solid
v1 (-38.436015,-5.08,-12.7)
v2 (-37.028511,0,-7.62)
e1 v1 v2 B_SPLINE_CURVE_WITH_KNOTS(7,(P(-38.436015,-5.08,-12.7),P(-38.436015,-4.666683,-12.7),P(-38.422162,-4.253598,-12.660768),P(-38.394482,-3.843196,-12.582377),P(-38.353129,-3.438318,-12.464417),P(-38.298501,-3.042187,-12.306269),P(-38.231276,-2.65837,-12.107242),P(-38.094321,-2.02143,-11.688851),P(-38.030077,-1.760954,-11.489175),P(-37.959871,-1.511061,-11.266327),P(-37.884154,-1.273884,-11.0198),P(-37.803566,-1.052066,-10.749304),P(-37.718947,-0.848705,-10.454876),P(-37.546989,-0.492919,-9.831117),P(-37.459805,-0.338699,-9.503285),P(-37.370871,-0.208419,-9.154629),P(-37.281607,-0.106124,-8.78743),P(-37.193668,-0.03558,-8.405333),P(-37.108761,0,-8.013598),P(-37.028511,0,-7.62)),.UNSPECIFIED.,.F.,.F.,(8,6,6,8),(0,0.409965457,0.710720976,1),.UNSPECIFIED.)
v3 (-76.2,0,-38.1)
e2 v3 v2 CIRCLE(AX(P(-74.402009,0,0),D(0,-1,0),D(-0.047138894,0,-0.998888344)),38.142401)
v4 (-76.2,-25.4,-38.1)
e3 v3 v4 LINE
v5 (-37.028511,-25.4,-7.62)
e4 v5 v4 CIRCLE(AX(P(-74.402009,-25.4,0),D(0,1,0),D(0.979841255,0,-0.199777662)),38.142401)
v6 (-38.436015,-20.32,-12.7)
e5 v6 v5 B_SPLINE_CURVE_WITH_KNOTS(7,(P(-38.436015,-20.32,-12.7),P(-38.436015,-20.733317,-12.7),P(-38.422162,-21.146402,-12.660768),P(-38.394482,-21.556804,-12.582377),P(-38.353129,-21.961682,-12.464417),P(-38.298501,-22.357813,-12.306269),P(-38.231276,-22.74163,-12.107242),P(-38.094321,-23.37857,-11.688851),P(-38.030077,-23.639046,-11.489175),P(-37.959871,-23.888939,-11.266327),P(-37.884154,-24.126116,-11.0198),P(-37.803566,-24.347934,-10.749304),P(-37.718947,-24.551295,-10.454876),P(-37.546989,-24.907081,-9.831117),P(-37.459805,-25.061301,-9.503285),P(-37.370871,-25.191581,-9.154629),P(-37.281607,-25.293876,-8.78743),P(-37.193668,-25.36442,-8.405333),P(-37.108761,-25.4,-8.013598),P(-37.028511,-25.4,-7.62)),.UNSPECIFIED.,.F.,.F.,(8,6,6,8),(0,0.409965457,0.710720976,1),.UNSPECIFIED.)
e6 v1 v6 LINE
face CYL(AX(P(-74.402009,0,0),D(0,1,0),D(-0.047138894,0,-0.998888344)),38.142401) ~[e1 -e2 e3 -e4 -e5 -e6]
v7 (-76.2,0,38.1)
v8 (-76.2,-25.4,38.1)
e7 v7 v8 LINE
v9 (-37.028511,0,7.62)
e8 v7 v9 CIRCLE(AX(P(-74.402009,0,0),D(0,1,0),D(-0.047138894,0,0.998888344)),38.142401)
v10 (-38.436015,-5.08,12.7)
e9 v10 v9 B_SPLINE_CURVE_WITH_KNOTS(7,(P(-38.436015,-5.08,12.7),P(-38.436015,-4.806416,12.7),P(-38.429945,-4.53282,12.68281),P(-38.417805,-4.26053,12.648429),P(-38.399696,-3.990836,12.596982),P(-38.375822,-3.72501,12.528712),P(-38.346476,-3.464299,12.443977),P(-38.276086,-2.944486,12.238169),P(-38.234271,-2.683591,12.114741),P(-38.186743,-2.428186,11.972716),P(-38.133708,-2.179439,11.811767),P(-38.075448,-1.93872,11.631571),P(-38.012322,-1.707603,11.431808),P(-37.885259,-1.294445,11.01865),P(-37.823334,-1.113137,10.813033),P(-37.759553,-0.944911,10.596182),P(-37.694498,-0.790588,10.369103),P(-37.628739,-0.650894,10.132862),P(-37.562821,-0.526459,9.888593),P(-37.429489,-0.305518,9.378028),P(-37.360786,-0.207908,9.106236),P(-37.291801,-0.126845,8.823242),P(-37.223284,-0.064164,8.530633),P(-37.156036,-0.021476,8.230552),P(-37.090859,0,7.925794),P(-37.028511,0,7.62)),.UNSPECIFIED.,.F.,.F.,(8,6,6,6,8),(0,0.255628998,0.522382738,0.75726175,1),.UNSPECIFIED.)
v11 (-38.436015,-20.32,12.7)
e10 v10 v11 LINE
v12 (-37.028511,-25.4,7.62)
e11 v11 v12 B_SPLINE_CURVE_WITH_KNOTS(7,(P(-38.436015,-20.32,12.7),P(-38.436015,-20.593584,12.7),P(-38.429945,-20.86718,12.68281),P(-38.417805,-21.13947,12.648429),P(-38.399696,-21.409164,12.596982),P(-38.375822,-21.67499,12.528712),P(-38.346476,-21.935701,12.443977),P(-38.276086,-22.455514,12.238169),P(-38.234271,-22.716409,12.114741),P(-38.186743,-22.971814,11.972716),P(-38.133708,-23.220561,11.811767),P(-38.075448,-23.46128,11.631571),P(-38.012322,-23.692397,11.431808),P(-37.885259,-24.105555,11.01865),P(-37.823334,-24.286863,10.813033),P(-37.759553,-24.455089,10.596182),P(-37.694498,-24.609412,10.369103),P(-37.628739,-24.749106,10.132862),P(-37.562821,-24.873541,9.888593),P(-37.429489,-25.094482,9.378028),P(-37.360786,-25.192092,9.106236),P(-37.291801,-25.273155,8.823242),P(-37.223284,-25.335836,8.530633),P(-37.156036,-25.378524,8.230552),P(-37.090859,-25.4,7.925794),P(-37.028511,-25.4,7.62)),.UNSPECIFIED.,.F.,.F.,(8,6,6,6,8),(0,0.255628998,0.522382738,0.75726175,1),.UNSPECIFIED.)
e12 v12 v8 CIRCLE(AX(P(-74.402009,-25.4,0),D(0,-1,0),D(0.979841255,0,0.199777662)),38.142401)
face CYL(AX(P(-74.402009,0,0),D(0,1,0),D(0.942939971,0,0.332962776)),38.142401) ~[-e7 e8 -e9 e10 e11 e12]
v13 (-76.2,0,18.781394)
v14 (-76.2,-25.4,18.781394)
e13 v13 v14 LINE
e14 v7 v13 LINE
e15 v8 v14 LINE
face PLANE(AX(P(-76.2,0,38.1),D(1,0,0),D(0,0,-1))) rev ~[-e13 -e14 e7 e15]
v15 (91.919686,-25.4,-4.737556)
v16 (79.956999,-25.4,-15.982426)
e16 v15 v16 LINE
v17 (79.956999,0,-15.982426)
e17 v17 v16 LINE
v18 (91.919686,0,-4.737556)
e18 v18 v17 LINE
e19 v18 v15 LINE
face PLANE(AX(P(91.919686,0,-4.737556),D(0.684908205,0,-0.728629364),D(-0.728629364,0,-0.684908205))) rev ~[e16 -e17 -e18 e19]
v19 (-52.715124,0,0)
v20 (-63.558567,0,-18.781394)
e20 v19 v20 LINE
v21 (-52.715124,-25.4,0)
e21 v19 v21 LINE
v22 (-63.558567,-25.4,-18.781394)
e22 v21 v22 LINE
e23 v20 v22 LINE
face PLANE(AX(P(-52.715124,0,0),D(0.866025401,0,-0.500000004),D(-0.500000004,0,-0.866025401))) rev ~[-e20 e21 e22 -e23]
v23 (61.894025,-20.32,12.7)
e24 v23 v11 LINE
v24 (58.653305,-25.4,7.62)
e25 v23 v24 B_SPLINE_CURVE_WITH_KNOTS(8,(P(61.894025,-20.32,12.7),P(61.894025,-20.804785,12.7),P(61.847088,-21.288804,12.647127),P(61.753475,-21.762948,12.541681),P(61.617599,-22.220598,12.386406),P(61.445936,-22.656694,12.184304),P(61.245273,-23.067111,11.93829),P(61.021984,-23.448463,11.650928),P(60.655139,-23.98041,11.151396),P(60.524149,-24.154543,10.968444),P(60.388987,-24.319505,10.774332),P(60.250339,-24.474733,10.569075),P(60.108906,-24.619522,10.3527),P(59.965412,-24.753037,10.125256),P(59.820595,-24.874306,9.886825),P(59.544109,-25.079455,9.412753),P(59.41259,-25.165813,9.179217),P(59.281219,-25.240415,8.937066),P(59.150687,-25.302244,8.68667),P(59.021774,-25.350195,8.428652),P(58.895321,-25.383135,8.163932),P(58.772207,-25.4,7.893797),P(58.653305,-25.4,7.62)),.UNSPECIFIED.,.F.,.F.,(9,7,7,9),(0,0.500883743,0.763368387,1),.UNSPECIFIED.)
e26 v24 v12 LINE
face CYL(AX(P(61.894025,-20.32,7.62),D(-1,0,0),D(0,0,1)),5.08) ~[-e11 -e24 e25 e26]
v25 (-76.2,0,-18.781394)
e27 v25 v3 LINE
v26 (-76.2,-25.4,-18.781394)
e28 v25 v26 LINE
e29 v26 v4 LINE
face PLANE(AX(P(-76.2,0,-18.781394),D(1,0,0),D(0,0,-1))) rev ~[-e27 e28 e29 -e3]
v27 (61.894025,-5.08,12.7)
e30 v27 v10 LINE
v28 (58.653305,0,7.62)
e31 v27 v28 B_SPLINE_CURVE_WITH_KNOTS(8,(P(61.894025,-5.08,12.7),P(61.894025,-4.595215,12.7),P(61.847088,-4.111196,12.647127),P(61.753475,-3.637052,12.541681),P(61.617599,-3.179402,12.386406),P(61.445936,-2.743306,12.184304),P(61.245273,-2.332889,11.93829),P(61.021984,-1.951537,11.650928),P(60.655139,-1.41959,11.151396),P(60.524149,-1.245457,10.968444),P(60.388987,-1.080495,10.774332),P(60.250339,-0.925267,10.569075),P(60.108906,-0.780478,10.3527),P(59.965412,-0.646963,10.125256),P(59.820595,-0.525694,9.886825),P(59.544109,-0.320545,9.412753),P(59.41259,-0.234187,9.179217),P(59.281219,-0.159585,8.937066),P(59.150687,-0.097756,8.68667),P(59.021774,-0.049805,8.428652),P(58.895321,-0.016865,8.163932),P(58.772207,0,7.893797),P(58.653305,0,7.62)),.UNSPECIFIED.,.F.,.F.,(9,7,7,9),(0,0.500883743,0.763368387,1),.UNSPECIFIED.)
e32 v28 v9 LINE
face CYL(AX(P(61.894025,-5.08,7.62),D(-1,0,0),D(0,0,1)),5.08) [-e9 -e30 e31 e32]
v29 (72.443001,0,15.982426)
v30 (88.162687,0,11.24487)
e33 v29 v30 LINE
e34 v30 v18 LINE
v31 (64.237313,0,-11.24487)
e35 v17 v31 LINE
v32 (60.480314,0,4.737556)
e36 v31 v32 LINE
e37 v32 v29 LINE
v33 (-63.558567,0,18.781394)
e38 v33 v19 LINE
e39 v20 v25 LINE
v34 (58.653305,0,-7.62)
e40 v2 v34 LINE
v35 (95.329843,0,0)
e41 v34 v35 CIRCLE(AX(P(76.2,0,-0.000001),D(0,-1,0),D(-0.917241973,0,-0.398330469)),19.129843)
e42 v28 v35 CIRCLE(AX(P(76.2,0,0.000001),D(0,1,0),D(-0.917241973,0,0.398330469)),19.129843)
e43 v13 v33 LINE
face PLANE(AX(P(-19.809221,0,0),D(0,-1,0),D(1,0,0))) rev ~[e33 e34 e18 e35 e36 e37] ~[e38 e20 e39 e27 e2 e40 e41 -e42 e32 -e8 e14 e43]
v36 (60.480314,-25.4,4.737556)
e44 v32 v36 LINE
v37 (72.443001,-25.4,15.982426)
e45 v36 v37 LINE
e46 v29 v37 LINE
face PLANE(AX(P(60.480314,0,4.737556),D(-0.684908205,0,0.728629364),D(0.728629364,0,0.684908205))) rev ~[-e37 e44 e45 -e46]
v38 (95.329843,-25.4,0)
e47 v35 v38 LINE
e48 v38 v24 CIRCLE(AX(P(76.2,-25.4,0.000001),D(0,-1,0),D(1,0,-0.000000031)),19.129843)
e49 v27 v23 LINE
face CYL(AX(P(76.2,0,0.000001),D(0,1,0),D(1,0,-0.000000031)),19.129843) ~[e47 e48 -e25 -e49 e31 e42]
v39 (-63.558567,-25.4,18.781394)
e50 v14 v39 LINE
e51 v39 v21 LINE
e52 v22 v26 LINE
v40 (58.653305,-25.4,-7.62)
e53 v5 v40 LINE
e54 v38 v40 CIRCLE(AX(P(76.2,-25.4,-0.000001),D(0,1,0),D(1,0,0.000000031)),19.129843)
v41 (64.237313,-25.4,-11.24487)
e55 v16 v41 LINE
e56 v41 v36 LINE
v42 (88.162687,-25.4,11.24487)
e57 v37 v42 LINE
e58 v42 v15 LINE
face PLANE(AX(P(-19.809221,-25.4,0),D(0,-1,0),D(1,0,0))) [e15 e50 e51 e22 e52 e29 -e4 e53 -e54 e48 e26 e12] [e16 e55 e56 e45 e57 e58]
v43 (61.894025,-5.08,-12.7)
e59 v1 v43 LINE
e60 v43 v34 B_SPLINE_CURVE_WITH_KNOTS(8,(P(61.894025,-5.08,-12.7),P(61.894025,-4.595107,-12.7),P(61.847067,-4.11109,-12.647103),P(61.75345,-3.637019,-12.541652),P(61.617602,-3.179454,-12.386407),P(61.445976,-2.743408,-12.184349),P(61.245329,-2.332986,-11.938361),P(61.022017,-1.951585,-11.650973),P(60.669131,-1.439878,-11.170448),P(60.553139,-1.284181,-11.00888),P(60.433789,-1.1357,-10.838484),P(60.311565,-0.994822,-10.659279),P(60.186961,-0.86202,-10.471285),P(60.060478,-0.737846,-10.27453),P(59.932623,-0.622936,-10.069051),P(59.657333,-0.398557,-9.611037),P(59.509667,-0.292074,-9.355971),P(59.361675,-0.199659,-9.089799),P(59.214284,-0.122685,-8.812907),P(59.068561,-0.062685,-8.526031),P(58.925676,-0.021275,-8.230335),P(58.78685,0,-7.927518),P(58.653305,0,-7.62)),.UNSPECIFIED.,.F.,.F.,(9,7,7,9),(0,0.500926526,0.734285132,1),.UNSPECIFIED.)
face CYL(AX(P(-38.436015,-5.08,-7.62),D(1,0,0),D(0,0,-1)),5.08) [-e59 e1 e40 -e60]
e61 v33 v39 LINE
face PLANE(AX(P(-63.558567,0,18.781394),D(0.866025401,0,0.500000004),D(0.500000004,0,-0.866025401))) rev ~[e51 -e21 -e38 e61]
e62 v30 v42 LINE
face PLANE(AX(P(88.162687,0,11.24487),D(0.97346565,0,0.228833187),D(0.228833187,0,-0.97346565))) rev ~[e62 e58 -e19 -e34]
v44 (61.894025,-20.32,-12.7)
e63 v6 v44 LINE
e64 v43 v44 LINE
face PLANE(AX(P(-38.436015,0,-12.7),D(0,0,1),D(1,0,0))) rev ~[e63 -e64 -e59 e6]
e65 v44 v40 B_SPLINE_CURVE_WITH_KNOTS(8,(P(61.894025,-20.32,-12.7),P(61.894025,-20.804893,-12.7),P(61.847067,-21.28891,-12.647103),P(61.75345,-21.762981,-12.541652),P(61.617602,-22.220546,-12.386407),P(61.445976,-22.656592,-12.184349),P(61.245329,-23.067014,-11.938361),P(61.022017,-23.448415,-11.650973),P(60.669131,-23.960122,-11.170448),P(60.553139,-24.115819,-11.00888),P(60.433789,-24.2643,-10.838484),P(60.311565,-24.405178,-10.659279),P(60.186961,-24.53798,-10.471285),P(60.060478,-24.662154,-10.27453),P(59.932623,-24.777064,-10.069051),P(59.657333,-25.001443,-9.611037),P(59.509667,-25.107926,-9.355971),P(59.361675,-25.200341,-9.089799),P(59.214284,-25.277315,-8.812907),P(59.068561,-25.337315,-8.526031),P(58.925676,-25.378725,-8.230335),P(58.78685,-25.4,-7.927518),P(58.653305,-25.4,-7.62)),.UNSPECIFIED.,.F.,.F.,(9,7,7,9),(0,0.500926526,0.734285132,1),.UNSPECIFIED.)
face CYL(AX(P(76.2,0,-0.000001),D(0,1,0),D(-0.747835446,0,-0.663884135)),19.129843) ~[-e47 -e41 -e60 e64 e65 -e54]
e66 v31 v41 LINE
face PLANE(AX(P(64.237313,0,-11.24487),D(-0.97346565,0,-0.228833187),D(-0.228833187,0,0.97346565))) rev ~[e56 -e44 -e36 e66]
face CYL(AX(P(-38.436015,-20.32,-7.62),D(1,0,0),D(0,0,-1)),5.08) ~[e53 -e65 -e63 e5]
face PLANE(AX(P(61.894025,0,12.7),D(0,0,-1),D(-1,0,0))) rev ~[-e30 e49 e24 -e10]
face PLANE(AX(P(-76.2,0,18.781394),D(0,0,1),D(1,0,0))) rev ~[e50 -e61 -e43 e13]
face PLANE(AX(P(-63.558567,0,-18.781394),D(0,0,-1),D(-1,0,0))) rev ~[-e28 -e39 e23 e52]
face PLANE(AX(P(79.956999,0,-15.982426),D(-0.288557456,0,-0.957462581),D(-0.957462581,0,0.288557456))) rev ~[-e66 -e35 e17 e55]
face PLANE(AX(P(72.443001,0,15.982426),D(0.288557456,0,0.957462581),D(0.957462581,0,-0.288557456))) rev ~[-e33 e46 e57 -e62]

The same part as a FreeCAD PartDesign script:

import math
import FreeCAD as App
import Part
import Sketcher

V = App.Vector
Q = App.Units.Quantity


def edges_at(feature, points):
    """Names of the edges that pass closest to the given points."""
    edges = feature.Shape.Edges
    near = lambda p: min(range(len(edges)), key=lambda i: edges[i].distToShape(Part.Vertex(*p))[0])
    return sorted({f"Edge{near(p) + 1}" for p in points})

doc = App.newDocument("Part")
body = doc.addObject("PartDesign::Body", "Body")

sketch1 = body.newObject("Sketcher::SketchObject", "Sketch")
sketch1.AttachmentSupport = (doc.getObject("XZ_Plane"), [""])
sketch1.MapMode = "FlatFace"
sketch1.addGeometry([
    Part.LineSegment(V(-38, -13, 0), V(62, -13, 0)),
    Part.ArcOfCircle(Part.Circle(V(76, 0, 0), V(0, 0, 1), 19), math.radians(-138), math.radians(0)),
    Part.ArcOfCircle(Part.Circle(V(76, 0, 0), V(0, 0, 1), 19), math.radians(0), math.radians(138)),
    Part.LineSegment(V(62, 13, 0), V(-38, 13, 0)),
    Part.ArcOfCircle(Part.Circle(V(-74, 0, 0), V(0, 0, 1), 38), math.radians(19), math.radians(93)),
    Part.LineSegment(V(-76, 38, 0), V(-76, 19, 0)),
    Part.LineSegment(V(-76, 19, 0), V(-64, 19, 0)),
    Part.LineSegment(V(-64, 19, 0), V(-53, 0, 0)),
    Part.LineSegment(V(-53, 0, 0), V(-64, -19, 0)),
    Part.LineSegment(V(-64, -19, 0), V(-76, -19, 0)),
    Part.LineSegment(V(-76, -19, 0), V(-76, -38, 0)),
    Part.ArcOfCircle(Part.Circle(V(-74, 0, 0), V(0, 0, 1), 38), math.radians(-93), math.radians(-19)),
    Part.LineSegment(V(60, 5, 0), V(72, 16, 0)),
    Part.LineSegment(V(72, 16, 0), V(88, 11, 0)),
    Part.LineSegment(V(88, 11, 0), V(92, -5, 0)),
    Part.LineSegment(V(92, -5, 0), V(80, -16, 0)),
    Part.LineSegment(V(80, -16, 0), V(64, -11, 0)),
    Part.LineSegment(V(64, -11, 0), V(60, 5, 0)),
], False)
sketch1.addConstraint([
    Sketcher.Constraint("Coincident", 0, 2, 1, 1),
    Sketcher.Constraint("Tangent", 1, 2, 2, 1),
    Sketcher.Constraint("Coincident", 2, 2, 3, 1),
    Sketcher.Constraint("Coincident", 3, 2, 4, 1),
    Sketcher.Constraint("Coincident", 4, 2, 5, 1),
    Sketcher.Constraint("Coincident", 5, 2, 6, 1),
    Sketcher.Constraint("Coincident", 6, 2, 7, 1),
    Sketcher.Constraint("Coincident", 7, 2, 8, 1),
    Sketcher.Constraint("Coincident", 8, 2, 9, 1),
    Sketcher.Constraint("Coincident", 9, 2, 10, 1),
    Sketcher.Constraint("Coincident", 10, 2, 11, 1),
    Sketcher.Constraint("Coincident", 11, 2, 0, 1),
    Sketcher.Constraint("Coincident", 12, 2, 13, 1),
    Sketcher.Constraint("Coincident", 13, 2, 14, 1),
    Sketcher.Constraint("Coincident", 14, 2, 15, 1),
    Sketcher.Constraint("Coincident", 15, 2, 16, 1),
    Sketcher.Constraint("Coincident", 16, 2, 17, 1),
    Sketcher.Constraint("Coincident", 17, 2, 12, 1),
    Sketcher.Constraint("Horizontal", 0),
    Sketcher.Constraint("Horizontal", 3),
    Sketcher.Constraint("Vertical", 5),
    Sketcher.Constraint("Horizontal", 6),
    Sketcher.Constraint("Horizontal", 9),
    Sketcher.Constraint("Vertical", 10),
    Sketcher.Constraint("Coincident", 11, 3, 4, 3),
    Sketcher.Constraint("Equal", 1, 2),
    Sketcher.Constraint("Equal", 4, 11),
    Sketcher.Constraint("Symmetric", 0, 2, 2, 2, -1),
    Sketcher.Constraint("Symmetric", 6, 2, 8, 2, -1),
    Sketcher.Constraint("Symmetric", 4, 2, 10, 2, -1),
    Sketcher.Constraint("PointOnObject", 1, 2, -1),
    Sketcher.Constraint("PointOnObject", 7, 2, -1),
    Sketcher.Constraint("Parallel", 12, 15),
    Sketcher.Constraint("Parallel", 13, 16),
    Sketcher.Constraint("Parallel", 14, 17),
    Sketcher.Constraint("Equal", 12, 13),
    Sketcher.Constraint("Equal", 13, 14),
    Sketcher.Constraint("Equal", 14, 15),
    Sketcher.Constraint("DistanceX", -1, 1, 1, 3, Q("3 in")),
    Sketcher.Constraint("DistanceX", 4, 2, -1, 1, Q("3 in")),
    Sketcher.Constraint("Angle", 7, Q("-60 deg")),
    Sketcher.Constraint("DistanceY", 0, 2, 2, 2, Q("1 in")),
    Sketcher.Constraint("DistanceY", 3, 2, 4, 2, Q("1 in")),
    Sketcher.Constraint("Radius", 4, 38.142401),
    Sketcher.Constraint("Radius", 1, 19.129843),
    Sketcher.Constraint("DistanceX", -1, 1, 12, 2, 72.443001),
    Sketcher.Constraint("DistanceX", -1, 1, 15, 2, 79.956999),
    Sketcher.Constraint("DistanceX", 13, 2, 14, 2, 3.756999),
    Sketcher.Constraint("Distance", 12, 16.418069),
    Sketcher.Constraint("DistanceX", 6, 1, 6, 2, 12.641433),
    Sketcher.Constraint("DistanceY", 5, 2, 5, 1, 19.318606),
    Sketcher.Constraint("DistanceY", -1, 1, 13, 2, 11.24487),
    Sketcher.Constraint("DistanceY", 16, 2, -1, 1, 11.24487),
])
pad1 = body.newObject("PartDesign::Pad", "Pad")
pad1.Profile = sketch1
pad1.Length = Q("1 in")
doc.recompute()

fillet = body.newObject("PartDesign::Fillet", "Fillet")
fillet.Base = (pad1, edges_at(pad1, [
    (11.729, -25.4, -12.7),
    (11.729, 0, -12.7),
    (11.729, 0, 12.7),
    (11.729, -25.4, 12.7),
]))
fillet.Radius = Q("0.2 in")

doc.recompute()
